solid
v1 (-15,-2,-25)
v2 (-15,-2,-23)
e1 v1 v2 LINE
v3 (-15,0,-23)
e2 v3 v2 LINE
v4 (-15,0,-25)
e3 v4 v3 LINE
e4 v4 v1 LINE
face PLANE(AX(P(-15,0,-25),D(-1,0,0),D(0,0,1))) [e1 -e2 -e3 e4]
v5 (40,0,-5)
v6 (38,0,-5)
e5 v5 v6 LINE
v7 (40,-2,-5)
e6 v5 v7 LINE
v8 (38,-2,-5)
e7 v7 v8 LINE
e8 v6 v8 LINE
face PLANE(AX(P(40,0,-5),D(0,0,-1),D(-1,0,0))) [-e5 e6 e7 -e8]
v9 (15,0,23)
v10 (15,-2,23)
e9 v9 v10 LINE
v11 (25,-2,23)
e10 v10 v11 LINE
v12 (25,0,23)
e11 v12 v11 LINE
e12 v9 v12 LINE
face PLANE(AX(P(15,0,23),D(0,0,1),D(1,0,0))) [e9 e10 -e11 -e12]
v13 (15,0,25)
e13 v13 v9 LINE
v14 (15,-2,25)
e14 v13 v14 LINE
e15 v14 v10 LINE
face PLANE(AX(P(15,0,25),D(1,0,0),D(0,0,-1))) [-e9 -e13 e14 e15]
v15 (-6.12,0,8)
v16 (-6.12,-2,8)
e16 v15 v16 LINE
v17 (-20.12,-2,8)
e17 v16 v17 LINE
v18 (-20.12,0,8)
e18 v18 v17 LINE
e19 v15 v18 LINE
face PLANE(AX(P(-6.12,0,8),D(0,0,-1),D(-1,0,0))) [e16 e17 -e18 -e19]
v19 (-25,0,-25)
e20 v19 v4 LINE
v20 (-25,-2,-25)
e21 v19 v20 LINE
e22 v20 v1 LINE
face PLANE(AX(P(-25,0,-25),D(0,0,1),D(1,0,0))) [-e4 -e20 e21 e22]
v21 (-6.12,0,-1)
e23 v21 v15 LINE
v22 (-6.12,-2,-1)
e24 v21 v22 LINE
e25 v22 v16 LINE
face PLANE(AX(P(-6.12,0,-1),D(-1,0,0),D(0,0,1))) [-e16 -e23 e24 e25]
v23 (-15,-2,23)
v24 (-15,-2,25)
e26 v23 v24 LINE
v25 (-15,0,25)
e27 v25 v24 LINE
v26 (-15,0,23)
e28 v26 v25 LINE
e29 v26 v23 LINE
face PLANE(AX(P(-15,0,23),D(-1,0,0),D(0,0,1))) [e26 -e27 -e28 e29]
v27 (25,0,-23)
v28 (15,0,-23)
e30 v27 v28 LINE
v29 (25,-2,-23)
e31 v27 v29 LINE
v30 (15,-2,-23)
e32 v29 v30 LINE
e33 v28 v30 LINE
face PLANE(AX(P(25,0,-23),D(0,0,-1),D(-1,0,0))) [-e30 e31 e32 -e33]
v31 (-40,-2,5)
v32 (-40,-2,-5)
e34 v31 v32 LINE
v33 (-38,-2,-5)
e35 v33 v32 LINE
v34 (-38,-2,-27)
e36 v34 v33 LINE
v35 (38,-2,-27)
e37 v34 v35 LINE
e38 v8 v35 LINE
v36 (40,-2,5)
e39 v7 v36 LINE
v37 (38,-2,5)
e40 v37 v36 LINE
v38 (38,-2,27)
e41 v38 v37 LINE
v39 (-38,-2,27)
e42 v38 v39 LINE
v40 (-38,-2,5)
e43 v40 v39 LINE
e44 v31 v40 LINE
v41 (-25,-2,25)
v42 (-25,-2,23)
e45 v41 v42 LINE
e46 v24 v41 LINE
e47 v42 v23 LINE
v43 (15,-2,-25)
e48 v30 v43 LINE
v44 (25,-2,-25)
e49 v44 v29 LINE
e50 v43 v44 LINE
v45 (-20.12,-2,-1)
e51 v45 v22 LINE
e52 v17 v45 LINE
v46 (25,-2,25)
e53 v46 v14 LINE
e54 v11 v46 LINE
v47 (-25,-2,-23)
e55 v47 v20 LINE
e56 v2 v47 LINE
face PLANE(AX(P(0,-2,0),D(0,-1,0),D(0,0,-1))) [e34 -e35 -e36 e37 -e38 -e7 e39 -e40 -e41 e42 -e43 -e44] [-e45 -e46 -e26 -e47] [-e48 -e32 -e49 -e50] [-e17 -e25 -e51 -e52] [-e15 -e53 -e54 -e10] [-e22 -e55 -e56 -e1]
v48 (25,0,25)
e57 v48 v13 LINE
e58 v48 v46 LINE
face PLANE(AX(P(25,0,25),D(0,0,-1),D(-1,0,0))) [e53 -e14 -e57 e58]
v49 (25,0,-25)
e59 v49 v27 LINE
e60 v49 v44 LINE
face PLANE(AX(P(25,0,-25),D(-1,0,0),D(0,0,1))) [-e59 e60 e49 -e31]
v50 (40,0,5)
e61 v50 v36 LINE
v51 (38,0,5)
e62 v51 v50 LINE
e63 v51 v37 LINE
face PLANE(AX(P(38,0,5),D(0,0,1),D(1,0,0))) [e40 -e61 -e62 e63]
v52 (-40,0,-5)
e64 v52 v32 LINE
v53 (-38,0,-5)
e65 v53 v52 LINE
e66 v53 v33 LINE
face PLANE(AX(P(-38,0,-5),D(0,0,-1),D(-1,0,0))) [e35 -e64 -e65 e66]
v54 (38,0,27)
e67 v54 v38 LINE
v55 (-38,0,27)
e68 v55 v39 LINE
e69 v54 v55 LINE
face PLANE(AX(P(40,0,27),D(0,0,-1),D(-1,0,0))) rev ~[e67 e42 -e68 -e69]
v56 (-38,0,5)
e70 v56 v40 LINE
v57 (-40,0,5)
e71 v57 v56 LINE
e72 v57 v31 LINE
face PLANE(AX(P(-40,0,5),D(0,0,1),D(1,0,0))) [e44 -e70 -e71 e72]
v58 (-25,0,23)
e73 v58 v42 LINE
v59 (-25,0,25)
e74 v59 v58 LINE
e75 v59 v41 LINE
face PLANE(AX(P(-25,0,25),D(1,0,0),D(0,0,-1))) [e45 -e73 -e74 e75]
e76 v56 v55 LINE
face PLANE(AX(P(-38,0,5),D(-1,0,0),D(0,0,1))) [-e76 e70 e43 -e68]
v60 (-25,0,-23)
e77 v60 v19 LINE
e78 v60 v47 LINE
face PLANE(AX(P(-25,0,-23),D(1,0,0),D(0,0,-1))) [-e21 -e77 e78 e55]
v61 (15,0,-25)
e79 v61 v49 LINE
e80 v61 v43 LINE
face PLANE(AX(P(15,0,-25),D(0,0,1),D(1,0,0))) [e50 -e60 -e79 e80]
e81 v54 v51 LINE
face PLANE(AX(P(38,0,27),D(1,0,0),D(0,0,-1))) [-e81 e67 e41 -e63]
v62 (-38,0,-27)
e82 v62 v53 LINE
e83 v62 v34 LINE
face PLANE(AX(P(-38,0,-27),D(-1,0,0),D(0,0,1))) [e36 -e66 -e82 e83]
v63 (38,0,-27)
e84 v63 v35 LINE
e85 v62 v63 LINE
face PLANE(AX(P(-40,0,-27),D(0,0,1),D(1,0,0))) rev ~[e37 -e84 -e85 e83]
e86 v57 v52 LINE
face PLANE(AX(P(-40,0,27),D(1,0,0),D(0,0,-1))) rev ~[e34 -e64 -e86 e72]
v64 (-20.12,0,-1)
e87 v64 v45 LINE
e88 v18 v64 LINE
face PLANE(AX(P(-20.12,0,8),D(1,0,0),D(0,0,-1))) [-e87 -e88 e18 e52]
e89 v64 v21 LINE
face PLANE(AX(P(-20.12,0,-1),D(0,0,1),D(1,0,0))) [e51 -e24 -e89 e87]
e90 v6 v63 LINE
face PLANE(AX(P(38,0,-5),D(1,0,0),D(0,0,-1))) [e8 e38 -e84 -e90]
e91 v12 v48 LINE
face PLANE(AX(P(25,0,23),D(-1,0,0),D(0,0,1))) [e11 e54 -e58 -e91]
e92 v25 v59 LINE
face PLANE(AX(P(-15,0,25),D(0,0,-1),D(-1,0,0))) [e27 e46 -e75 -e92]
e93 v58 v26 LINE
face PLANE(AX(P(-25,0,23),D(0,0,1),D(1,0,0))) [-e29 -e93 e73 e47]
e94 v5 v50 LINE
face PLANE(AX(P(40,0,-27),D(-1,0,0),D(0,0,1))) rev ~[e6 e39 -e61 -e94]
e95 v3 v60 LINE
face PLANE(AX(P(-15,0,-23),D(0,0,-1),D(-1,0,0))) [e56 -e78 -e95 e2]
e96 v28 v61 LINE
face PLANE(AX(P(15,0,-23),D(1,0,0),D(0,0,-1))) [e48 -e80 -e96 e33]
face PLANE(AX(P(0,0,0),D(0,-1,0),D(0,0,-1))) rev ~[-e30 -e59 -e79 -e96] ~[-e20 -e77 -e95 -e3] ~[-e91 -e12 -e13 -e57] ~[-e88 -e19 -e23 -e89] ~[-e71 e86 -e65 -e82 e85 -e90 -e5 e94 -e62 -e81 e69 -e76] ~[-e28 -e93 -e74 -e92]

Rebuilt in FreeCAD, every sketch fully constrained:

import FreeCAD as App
import Part
import Sketcher
from FreeCAD import Vector


def add_polygon(sketch, points):
    """Adds a closed chain of lines whose ends are joined by coincident constraints."""
    first, n = sketch.GeometryCount, len(points)
    for a, b in zip(points, points[1:] + points[:1]):
        sketch.addGeometry(Part.LineSegment(App.Vector(*a, 0), App.Vector(*b, 0)), False)
    for i in range(n):
        sketch.addConstraint(Sketcher.Constraint("Coincident", first + i, 2, first + (i + 1) % n, 1))

doc = App.newDocument("Part")
body = doc.addObject("PartDesign::Body", "Body")

# Sketch on XZ plane
sketch1 = doc.addObject("Sketcher::SketchObject", "Sketch")
body.addObject(sketch1)
sketch1.AttachmentSupport = (doc.XZ_Plane, [""])
sketch1.MapMode = "FlatFace"
add_polygon(sketch1, [(-40, -27), (40, -27), (40, 27), (-40, 27)])  # lines 0-3
sketch1.addConstraint([
    Sketcher.Constraint("Horizontal", 0),
    Sketcher.Constraint("Vertical", 1),
    Sketcher.Constraint("Horizontal", 2),
    Sketcher.Constraint("Vertical", 3),
    Sketcher.Constraint("Symmetric", 0, 2, 2, 2, -1, 1),
    Sketcher.Constraint("DistanceX", 0, 1, 0, 2, 80.0),
    Sketcher.Constraint("DistanceY", 1, 1, 1, 2, 54.0),
])
pad1 = doc.addObject("PartDesign::Pad", "Pad")
body.addObject(pad1)
pad1.Profile = sketch1
pad1.Length = 2

# Sketch on XZ plane
sketch2 = doc.addObject("Sketcher::SketchObject", "Sketch001")
body.addObject(sketch2)
sketch2.AttachmentSupport = (doc.XZ_Plane, [""])
sketch2.MapMode = "FlatFace"
add_polygon(sketch2, [(-25, 25), (-25, 23), (-15, 23), (-15, 25)])  # lines 0-3
sketch2.addConstraint([
    Sketcher.Constraint("Vertical", 0),
    Sketcher.Constraint("Horizontal", 1),
    Sketcher.Constraint("Vertical", 2),
    Sketcher.Constraint("Horizontal", 3),
    Sketcher.Constraint("DistanceX", 1, 1, 1, 2, 10.0),
    Sketcher.Constraint("DistanceY", 0, 2, 0, 1, 2.0),
    Sketcher.Constraint("DistanceX", 0, 2, -1, 1, 25.0),
    Sketcher.Constraint("DistanceY", -1, 1, 0, 2, 23.0),
])
pocket1 = doc.addObject("PartDesign::Pocket", "Pocket")
body.addObject(pocket1)
pocket1.Profile = sketch2
pocket1.Length = 2
pocket1.Reversed = True

# Sketch on XZ plane
sketch3 = doc.addObject("Sketcher::SketchObject", "Sketch002")
body.addObject(sketch3)
sketch3.AttachmentSupport = (doc.XZ_Plane, [""])
sketch3.MapMode = "FlatFace"
add_polygon(sketch3, [(25, 23), (25, 25), (15, 25), (15, 23)])  # lines 0-3
sketch3.addConstraint([
    Sketcher.Constraint("Vertical", 0),
    Sketcher.Constraint("Horizontal", 1),
    Sketcher.Constraint("Vertical", 2),
    Sketcher.Constraint("Horizontal", 3),
    Sketcher.Constraint("DistanceX", 1, 2, 1, 1, 10.0),
    Sketcher.Constraint("DistanceY", 0, 1, 0, 2, 2.0),
    Sketcher.Constraint("DistanceX", -1, 1, 0, 2, 25.0),
    Sketcher.Constraint("DistanceY", -1, 1, 0, 2, 25.0),
])
pocket2 = doc.addObject("PartDesign::Pocket", "Pocket001")
body.addObject(pocket2)
pocket2.Profile = sketch3
pocket2.Length = 2
pocket2.Reversed = True

# Sketch on XZ plane
sketch4 = doc.addObject("Sketcher::SketchObject", "Sketch003")
body.addObject(sketch4)
sketch4.AttachmentSupport = (doc.XZ_Plane, [""])
sketch4.MapMode = "FlatFace"
add_polygon(sketch4, [(15, -23), (15, -25), (25, -25), (25, -23)])  # lines 0-3
sketch4.addConstraint([
    Sketcher.Constraint("Vertical", 0),
    Sketcher.Constraint("Horizontal", 1),
    Sketcher.Constraint("Vertical", 2),
    Sketcher.Constraint("Horizontal", 3),
    Sketcher.Constraint("DistanceX", 1, 1, 1, 2, 10.0),
    Sketcher.Constraint("DistanceY", 0, 2, 0, 1, 2.0),
    Sketcher.Constraint("DistanceX", -1, 1, 0, 2, 15.0),
    Sketcher.Constraint("DistanceY", 0, 2, -1, 1, 25.0),
])
pocket3 = doc.addObject("PartDesign::Pocket", "Pocket002")
body.addObject(pocket3)
pocket3.Profile = sketch4
pocket3.Length = 2
pocket3.Reversed = True

# Sketch on XZ plane
sketch5 = doc.addObject("Sketcher::SketchObject", "Sketch004")
body.addObject(sketch5)
sketch5.AttachmentSupport = (doc.XZ_Plane, [""])
sketch5.MapMode = "FlatFace"
add_polygon(sketch5, [(-15, -25), (-15, -23), (-25, -23), (-25, -25)])  # lines 0-3
sketch5.addConstraint([
    Sketcher.Constraint("Vertical", 0),
    Sketcher.Constraint("Horizontal", 1),
    Sketcher.Constraint("Vertical", 2),
    Sketcher.Constraint("Horizontal", 3),
    Sketcher.Constraint("DistanceX", 1, 2, 1, 1, 10.0),
    Sketcher.Constraint("DistanceY", 0, 1, 0, 2, 2.0),
    Sketcher.Constraint("DistanceX", 0, 2, -1, 1, 15.0),
    Sketcher.Constraint("DistanceY", 0, 2, -1, 1, 23.0),
])
pocket4 = doc.addObject("PartDesign::Pocket", "Pocket003")
body.addObject(pocket4)
pocket4.Profile = sketch5
pocket4.Length = 2
pocket4.Reversed = True

# Sketch on XZ plane
sketch6 = doc.addObject("Sketcher::SketchObject", "Sketch005")
body.addObject(sketch6)
sketch6.AttachmentSupport = (doc.XZ_Plane, [""])
sketch6.MapMode = "FlatFace"
add_polygon(sketch6, [(-40, -27), (-38, -27), (-38, -5), (-40, -5)])  # lines 0-3
sketch6.addConstraint([
    Sketcher.Constraint("Horizontal", 0),
    Sketcher.Constraint("Vertical", 1),
    Sketcher.Constraint("Horizontal", 2),
    Sketcher.Constraint("Vertical", 3),
    Sketcher.Constraint("DistanceX", 0, 1, 0, 2, 2.0),
    Sketcher.Constraint("DistanceY", 1, 1, 1, 2, 22.0),
    Sketcher.Constraint("DistanceX", 0, 2, -1, 1, 38.0),
    Sketcher.Constraint("DistanceY", 0, 2, -1, 1, 27.0),
])
pocket5 = doc.addObject("PartDesign::Pocket", "Pocket004")
body.addObject(pocket5)
pocket5.Profile = sketch6
pocket5.Length = 2
pocket5.Reversed = True

# Sketch on XZ plane
sketch7 = doc.addObject("Sketcher::SketchObject", "Sketch006")
body.addObject(sketch7)
sketch7.AttachmentSupport = (doc.XZ_Plane, [""])
sketch7.MapMode = "FlatFace"
add_polygon(sketch7, [(-40, 5), (-38, 5), (-38, 27), (-40, 27)])  # lines 0-3
sketch7.addConstraint([
    Sketcher.Constraint("Horizontal", 0),
    Sketcher.Constraint("Vertical", 1),
    Sketcher.Constraint("Horizontal", 2),
    Sketcher.Constraint("Vertical", 3),
    Sketcher.Constraint("DistanceX", 0, 1, 0, 2, 2.0),
    Sketcher.Constraint("DistanceY", 1, 1, 1, 2, 22.0),
    Sketcher.Constraint("DistanceX", 0, 2, -1, 1, 38.0),
    Sketcher.Constraint("DistanceY", -1, 1, 0, 2, 5.0),
])
pocket6 = doc.addObject("PartDesign::Pocket", "Pocket005")
body.addObject(pocket6)
pocket6.Profile = sketch7
pocket6.Length = 2
pocket6.Reversed = True

# Sketch on XZ plane
sketch8 = doc.addObject("Sketcher::SketchObject", "Sketch007")
body.addObject(sketch8)
sketch8.AttachmentSupport = (doc.XZ_Plane, [""])
sketch8.MapMode = "FlatFace"
add_polygon(sketch8, [(40, -5), (38, -5), (38, -27), (40, -27)])  # lines 0-3
sketch8.addConstraint([
    Sketcher.Constraint("Horizontal", 0),
    Sketcher.Constraint("Vertical", 1),
    Sketcher.Constraint("Horizontal", 2),
    Sketcher.Constraint("Vertical", 3),
    Sketcher.Constraint("DistanceX", 0, 2, 0, 1, 2.0),
    Sketcher.Constraint("DistanceY", 1, 2, 1, 1, 22.0),
    Sketcher.Constraint("DistanceX", -1, 1, 0, 2, 38.0),
    Sketcher.Constraint("DistanceY", 0, 2, -1, 1, 5.0),
])
pocket7 = doc.addObject("PartDesign::Pocket", "Pocket006")
body.addObject(pocket7)
pocket7.Profile = sketch8
pocket7.Length = 2
pocket7.Reversed = True

# Sketch on XZ plane
sketch9 = doc.addObject("Sketcher::SketchObject", "Sketch008")
body.addObject(sketch9)
sketch9.AttachmentSupport = (doc.XZ_Plane, [""])
sketch9.MapMode = "FlatFace"
add_polygon(sketch9, [(40, 27), (38, 27), (38, 5), (40, 5)])  # lines 0-3
sketch9.addConstraint([
    Sketcher.Constraint("Horizontal", 0),
    Sketcher.Constraint("Vertical", 1),
    Sketcher.Constraint("Horizontal", 2),
    Sketcher.Constraint("Vertical", 3),
    Sketcher.Constraint("DistanceX", 0, 2, 0, 1, 2.0),
    Sketcher.Constraint("DistanceY", 1, 2, 1, 1, 22.0),
    Sketcher.Constraint("DistanceX", -1, 1, 0, 2, 38.0),
    Sketcher.Constraint("DistanceY", -1, 1, 0, 2, 27.0),
])
pocket8 = doc.addObject("PartDesign::Pocket", "Pocket007")
body.addObject(pocket8)
pocket8.Profile = sketch9
pocket8.Length = 2
pocket8.Reversed = True

# Sketch on XZ plane
sketch10 = doc.addObject("Sketcher::SketchObject", "Sketch009")
body.addObject(sketch10)
sketch10.AttachmentSupport = (doc.XZ_Plane, [""])
sketch10.MapMode = "FlatFace"
add_polygon(sketch10, [(-20, 8), (-20, -1), (-6, -1), (-6, 8)])  # lines 0-3
sketch10.addConstraint([
    Sketcher.Constraint("Vertical", 0),
    Sketcher.Constraint("Horizontal", 1),
    Sketcher.Constraint("Vertical", 2),
    Sketcher.Constraint("Horizontal", 3),
    Sketcher.Constraint("DistanceX", 1, 1, 1, 2, 14.0),
    Sketcher.Constraint("DistanceY", 0, 2, 0, 1, 9.0),
    Sketcher.Constraint("DistanceY", 0, 2, -1, 1, 1.0),
    Sketcher.Constraint("DistanceX", 0, 2, -1, 1, 20.12),
])
pocket9 = doc.addObject("PartDesign::Pocket", "Pocket008")
body.addObject(pocket9)
pocket9.Profile = sketch10
pocket9.Length = 2
pocket9.Reversed = True

doc.recompute()
